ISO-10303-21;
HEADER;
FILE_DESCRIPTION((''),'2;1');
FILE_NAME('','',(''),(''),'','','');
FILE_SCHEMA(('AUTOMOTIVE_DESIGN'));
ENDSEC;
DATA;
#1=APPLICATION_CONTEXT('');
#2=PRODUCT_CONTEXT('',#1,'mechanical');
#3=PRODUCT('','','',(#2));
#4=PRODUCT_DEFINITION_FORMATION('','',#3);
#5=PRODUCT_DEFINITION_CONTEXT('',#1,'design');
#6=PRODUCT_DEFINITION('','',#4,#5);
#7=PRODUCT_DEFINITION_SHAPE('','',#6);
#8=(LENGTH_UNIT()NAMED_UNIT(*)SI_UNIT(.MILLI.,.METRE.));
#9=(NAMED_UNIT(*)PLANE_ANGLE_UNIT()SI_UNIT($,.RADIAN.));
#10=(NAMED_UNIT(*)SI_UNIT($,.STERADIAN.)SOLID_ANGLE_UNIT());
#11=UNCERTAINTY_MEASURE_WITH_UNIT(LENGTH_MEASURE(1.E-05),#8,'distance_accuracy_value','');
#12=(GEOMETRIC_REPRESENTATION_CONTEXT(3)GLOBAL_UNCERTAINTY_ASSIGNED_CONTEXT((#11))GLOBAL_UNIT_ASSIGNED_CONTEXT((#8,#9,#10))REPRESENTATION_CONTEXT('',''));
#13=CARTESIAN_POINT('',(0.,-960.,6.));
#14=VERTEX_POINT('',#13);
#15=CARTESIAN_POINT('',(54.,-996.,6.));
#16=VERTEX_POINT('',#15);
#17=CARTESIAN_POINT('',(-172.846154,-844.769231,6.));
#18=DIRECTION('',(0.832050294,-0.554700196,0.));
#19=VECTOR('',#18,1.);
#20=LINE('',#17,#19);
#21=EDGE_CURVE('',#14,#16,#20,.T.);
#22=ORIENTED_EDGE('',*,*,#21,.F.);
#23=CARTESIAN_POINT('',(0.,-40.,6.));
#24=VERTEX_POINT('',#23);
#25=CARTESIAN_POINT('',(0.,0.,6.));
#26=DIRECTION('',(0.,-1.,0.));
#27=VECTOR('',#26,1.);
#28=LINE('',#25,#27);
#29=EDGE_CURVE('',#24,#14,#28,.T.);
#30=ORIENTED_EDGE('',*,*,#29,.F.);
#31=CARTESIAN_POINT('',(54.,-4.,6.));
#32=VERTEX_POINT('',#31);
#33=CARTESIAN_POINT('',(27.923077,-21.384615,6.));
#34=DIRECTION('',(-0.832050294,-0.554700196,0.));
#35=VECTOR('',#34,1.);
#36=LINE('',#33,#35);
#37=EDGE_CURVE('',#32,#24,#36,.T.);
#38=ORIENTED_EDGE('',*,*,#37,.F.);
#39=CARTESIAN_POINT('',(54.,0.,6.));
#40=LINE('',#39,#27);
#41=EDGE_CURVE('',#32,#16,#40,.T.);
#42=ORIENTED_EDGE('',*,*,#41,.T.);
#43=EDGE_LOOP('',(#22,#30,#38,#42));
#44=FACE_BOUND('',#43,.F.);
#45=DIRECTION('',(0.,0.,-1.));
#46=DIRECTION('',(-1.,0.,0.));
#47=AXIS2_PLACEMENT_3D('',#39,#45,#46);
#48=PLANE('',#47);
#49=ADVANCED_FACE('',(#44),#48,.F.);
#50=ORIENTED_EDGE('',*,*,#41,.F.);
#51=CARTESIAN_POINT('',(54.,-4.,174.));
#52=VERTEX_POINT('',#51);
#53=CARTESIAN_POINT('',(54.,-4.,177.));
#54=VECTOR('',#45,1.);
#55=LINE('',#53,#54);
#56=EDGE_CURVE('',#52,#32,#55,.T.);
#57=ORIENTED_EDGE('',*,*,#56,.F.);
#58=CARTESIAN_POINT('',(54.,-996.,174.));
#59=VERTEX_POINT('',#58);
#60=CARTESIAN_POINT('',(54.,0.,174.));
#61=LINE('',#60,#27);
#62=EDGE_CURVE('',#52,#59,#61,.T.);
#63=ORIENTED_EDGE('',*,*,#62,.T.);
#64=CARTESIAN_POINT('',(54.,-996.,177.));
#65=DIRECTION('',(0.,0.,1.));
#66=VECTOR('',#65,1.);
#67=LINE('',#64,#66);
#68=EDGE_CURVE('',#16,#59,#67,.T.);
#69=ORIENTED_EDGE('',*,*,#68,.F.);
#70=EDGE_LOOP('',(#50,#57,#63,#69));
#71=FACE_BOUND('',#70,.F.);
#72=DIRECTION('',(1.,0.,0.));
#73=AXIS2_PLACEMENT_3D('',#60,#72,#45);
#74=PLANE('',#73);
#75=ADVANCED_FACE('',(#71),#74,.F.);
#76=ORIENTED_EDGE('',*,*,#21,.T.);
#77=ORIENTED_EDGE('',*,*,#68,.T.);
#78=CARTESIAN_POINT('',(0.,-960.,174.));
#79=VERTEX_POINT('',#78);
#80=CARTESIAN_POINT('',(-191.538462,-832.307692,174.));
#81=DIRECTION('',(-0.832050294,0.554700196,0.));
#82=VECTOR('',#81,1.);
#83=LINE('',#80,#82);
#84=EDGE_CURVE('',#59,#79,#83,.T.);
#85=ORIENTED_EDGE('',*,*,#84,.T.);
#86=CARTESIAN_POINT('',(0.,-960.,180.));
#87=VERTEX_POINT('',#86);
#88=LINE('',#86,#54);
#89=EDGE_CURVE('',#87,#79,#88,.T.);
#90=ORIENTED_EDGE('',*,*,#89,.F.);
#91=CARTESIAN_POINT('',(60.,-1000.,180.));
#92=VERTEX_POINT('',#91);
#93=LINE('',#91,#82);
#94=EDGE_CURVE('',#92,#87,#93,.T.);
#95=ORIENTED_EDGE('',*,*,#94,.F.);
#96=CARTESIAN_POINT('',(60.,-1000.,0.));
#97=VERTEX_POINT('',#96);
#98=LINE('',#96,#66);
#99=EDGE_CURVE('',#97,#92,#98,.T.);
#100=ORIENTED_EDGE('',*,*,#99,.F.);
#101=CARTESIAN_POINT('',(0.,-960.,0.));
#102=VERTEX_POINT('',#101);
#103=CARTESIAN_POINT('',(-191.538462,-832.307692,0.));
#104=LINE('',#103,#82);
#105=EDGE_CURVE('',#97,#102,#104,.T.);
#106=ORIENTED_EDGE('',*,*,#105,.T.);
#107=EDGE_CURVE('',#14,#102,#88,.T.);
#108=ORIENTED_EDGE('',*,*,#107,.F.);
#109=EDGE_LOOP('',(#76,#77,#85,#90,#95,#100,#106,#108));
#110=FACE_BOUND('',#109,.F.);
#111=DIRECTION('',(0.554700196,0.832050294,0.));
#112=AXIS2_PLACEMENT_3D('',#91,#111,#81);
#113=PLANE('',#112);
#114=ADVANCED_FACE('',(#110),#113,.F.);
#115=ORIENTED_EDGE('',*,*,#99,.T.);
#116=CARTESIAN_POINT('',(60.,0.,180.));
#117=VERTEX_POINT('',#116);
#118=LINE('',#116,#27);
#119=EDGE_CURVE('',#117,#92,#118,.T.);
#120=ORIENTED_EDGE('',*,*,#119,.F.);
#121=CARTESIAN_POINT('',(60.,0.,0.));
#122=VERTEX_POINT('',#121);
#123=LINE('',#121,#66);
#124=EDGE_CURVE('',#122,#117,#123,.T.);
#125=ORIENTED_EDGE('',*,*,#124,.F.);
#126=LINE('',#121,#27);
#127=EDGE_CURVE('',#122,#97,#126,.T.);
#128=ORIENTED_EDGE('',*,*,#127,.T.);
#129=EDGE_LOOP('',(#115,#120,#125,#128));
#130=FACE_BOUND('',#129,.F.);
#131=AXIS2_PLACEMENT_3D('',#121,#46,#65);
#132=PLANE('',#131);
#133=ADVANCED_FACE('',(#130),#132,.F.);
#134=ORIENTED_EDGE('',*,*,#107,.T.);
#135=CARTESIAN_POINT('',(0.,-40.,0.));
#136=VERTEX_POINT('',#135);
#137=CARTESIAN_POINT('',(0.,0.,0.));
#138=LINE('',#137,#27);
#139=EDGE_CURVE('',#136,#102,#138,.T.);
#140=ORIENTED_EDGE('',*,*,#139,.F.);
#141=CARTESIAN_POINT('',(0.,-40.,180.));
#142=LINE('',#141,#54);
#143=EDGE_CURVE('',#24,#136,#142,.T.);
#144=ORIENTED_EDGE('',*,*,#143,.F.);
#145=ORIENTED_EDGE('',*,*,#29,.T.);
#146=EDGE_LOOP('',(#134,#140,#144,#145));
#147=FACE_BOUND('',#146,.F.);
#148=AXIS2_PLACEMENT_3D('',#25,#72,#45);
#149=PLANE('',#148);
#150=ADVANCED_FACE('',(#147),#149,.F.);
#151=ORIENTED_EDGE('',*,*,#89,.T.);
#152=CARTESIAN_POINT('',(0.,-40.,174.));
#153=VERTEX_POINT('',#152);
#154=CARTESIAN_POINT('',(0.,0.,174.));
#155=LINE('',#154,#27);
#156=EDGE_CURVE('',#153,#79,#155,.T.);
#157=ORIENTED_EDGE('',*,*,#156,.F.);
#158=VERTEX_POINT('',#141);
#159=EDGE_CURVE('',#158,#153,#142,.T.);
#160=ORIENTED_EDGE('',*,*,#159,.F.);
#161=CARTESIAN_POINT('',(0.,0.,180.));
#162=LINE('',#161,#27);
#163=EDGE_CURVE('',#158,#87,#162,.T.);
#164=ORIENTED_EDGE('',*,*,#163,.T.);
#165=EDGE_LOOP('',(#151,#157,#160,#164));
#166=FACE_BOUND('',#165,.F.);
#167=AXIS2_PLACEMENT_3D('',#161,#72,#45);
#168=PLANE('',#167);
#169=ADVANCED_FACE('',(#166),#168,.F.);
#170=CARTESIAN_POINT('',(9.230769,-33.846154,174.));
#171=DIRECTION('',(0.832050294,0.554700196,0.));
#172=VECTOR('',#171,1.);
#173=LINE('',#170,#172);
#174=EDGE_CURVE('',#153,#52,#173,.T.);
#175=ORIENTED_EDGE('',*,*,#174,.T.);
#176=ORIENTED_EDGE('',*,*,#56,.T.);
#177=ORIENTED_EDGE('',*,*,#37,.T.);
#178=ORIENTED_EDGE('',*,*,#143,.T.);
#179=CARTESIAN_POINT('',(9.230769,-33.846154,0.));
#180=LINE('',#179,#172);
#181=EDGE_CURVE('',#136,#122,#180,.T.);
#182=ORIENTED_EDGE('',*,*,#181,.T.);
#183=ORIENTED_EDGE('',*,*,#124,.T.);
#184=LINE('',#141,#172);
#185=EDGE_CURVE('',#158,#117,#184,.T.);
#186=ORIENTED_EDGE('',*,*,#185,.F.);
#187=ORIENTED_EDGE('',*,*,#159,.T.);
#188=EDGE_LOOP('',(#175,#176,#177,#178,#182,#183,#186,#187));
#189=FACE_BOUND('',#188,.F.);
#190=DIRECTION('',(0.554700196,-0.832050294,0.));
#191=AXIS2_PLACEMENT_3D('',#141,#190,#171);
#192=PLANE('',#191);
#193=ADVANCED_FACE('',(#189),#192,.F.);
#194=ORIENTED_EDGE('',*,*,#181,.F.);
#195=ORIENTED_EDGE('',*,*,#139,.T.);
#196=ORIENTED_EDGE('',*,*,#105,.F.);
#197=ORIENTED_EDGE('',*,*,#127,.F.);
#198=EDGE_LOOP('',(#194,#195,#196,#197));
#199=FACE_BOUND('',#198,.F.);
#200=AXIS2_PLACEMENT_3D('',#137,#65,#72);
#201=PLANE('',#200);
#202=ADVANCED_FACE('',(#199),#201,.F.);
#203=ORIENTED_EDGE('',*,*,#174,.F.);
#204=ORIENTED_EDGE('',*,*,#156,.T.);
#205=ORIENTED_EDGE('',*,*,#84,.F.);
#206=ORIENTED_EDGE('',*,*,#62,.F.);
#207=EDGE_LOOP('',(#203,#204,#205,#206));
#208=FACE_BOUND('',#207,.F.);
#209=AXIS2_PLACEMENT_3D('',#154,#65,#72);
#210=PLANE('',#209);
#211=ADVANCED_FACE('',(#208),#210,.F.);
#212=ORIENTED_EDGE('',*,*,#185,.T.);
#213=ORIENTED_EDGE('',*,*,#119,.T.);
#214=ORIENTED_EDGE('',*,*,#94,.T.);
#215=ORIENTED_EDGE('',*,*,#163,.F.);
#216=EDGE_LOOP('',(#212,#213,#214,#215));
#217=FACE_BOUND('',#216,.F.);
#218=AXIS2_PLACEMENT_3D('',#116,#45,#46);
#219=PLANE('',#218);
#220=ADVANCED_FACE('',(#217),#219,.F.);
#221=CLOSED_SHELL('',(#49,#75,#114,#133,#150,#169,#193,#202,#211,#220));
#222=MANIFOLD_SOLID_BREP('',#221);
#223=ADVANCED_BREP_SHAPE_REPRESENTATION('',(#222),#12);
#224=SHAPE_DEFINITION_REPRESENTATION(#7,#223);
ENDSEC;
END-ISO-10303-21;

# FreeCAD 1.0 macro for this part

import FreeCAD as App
import Part
import Sketcher

V = App.Vector
Q = App.Units.Quantity

doc = App.newDocument("Part")
params = doc.addObject("Spreadsheet::Sheet", "Params")
for row, (alias, value) in enumerate([
    ("sketch1_width", "60 mm"),
    ("sketch1_width2", "54 mm"),
    ("sketch1_height", "6 mm"),
    ("sketch1_height2", "180 mm"),
    ("pad1_length", "1000 mm"),
    ("sketch2_width", "60 mm"),
    ("sketch2_height", "40 mm"),
], start=1):
    params.set(f"A{row}", alias)
    params.set(f"B{row}", "=" + value)
    params.setAlias(f"B{row}", alias)

body = doc.addObject("PartDesign::Body", "Body")

# Sketch on XZ plane
sketch1 = body.newObject("Sketcher::SketchObject", "Sketch")
sketch1.AttachmentSupport = (doc.getObject("XZ_Plane"), [""])
sketch1.MapMode = "FlatFace"
sketch1.addGeometry([
    Part.LineSegment(V(0, 6, 0), V(0, 0, 0)),  # 0
    Part.LineSegment(V(0, 0, 0), V(60, 0, 0)),  # 1
    Part.LineSegment(V(60, 0, 0), V(60, 180, 0)),  # 2
    Part.LineSegment(V(60, 180, 0), V(0, 180, 0)),  # 3
    Part.LineSegment(V(0, 180, 0), V(0, 174, 0)),  # 4
    Part.LineSegment(V(0, 174, 0), V(54, 174, 0)),  # 5
    Part.LineSegment(V(54, 174, 0), V(54, 6, 0)),  # 6
    Part.LineSegment(V(54, 6, 0), V(0, 6, 0)),  # 7
], False)
sketch1.addConstraint([
    Sketcher.Constraint("Coincident", 0, 2, 1, 1),
    Sketcher.Constraint("Coincident", 1, 2, 2, 1),
    Sketcher.Constraint("Coincident", 2, 2, 3, 1),
    Sketcher.Constraint("Coincident", 3, 2, 4, 1),
    Sketcher.Constraint("Coincident", 4, 2, 5, 1),
    Sketcher.Constraint("Coincident", 5, 2, 6, 1),
    Sketcher.Constraint("Coincident", 6, 2, 7, 1),
    Sketcher.Constraint("Coincident", 7, 2, 0, 1),
    Sketcher.Constraint("Vertical", 0),
    Sketcher.Constraint("Horizontal", 1),
    Sketcher.Constraint("Vertical", 2),
    Sketcher.Constraint("Horizontal", 3),
    Sketcher.Constraint("Vertical", 4),
    Sketcher.Constraint("Horizontal", 5),
    Sketcher.Constraint("Vertical", 6),
    Sketcher.Constraint("Horizontal", 7),
    Sketcher.Constraint("Coincident", 0, 2, -1, 1),
    Sketcher.Constraint("PointOnObject", 3, 2, -2),
    Sketcher.Constraint("Equal", 0, 4),
    Sketcher.Constraint("DistanceX", 1, 1, 1, 2, Q("60 mm")),
    Sketcher.Constraint("DistanceX", 5, 1, 5, 2, Q("54 mm")),
    Sketcher.Constraint("DistanceY", 0, 2, 0, 1, Q("6 mm")),
    Sketcher.Constraint("DistanceY", 2, 1, 2, 2, Q("180 mm")),
])
sketch1.setExpression("Constraints[19]", "Params.sketch1_width")
sketch1.setExpression("Constraints[20]", "Params.sketch1_width2")
sketch1.setExpression("Constraints[21]", "Params.sketch1_height")
sketch1.setExpression("Constraints[22]", "Params.sketch1_height2")
pad1 = body.newObject("PartDesign::Pad", "Pad")
pad1.Profile = sketch1
pad1.setExpression("Length", "Params.pad1_length")

# Sketch on XY plane
sketch2 = body.newObject("Sketcher::SketchObject", "Sketch001")
sketch2.AttachmentSupport = (doc.getObject("XY_Plane"), [""])
sketch2.MapMode = "FlatFace"
sketch2.AttachmentOffset = App.Placement(V(0, 0, 180), App.Rotation())
sketch2.addGeometry([
    Part.LineSegment(V(60, -1000, 0), V(0, -960, 0)),  # 0
    Part.LineSegment(V(0, -960, 0), V(0, -1000, 0)),  # 1
    Part.LineSegment(V(0, -1000, 0), V(60, -1000, 0)),  # 2
    Part.LineSegment(V(0, 0, 0), V(0, -40, 0)),  # 3
    Part.LineSegment(V(0, -40, 0), V(60, 0, 0)),  # 4
    Part.LineSegment(V(60, 0, 0), V(0, 0, 0)),  # 5
], False)
sketch2.addConstraint([
    Sketcher.Constraint("Coincident", 0, 2, 1, 1),
    Sketcher.Constraint("Coincident", 1, 2, 2, 1),
    Sketcher.Constraint("Coincident", 2, 2, 0, 1),
    Sketcher.Constraint("Coincident", 3, 2, 4, 1),
    Sketcher.Constraint("Coincident", 4, 2, 5, 1),
    Sketcher.Constraint("Coincident", 5, 2, 3, 1),
    Sketcher.Constraint("Vertical", 1),
    Sketcher.Constraint("Horizontal", 2),
    Sketcher.Constraint("Vertical", 3),
    Sketcher.Constraint("Horizontal", 5),
    Sketcher.Constraint("Coincident", 5, 2, -1, 1),
    Sketcher.Constraint("PointOnObject", 0, 2, -2),
    Sketcher.Constraint("Vertical", 2, 2, 4, 2),
    Sketcher.Constraint("Equal", 1, 3),
    Sketcher.Constraint("DistanceX", 2, 1, 2, 2, Q("60 mm")),
    Sketcher.Constraint("DistanceY", 1, 2, 1, 1, Q("40 mm")),
    Sketcher.Constraint("DistanceY", 0, 2, -1, 1, Q("960 mm")),
])
sketch2.setExpression("Constraints[14]", "Params.sketch2_width")
sketch2.setExpression("Constraints[15]", "Params.sketch2_height")
pocket1 = body.newObject("PartDesign::Pocket", "Pocket")
pocket1.Profile = sketch2
pocket1.Type = "ThroughAll"

doc.recompute()
